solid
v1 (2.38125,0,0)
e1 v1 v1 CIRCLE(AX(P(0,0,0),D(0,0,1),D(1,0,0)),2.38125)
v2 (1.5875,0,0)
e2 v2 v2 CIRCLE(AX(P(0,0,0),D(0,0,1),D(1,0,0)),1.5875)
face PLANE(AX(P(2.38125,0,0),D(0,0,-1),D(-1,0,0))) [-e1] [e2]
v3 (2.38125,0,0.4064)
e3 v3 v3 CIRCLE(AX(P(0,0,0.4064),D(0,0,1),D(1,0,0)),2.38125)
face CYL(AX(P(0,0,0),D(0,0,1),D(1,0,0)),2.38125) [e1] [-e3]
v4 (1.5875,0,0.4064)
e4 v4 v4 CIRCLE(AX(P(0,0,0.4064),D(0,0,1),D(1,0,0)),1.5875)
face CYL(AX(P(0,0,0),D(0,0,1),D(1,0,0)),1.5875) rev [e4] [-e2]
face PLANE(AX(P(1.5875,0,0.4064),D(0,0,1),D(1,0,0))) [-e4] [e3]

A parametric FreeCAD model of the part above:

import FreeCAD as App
import Part
import Sketcher

V = App.Vector
Q = App.Units.Quantity

doc = App.newDocument("Part")
body = doc.addObject("PartDesign::Body", "Body")

# Sketch on XZ plane
sketch1 = body.newObject("Sketcher::SketchObject", "Sketch")
sketch1.AttachmentSupport = (doc.getObject("XZ_Plane"), [""])
sketch1.MapMode = "FlatFace"
sketch1.addGeometry([
    Part.LineSegment(V(1.59, 0, 0), V(1.59, 0.41, 0)),
    Part.LineSegment(V(1.59, 0.41, 0), V(2.38, 0.41, 0)),
    Part.LineSegment(V(2.38, 0.41, 0), V(2.38, 0, 0)),
    Part.LineSegment(V(2.38, 0, 0), V(1.59, 0, 0)),
], False)
sketch1.addConstraint([
    Sketcher.Constraint("Coincident", 0, 2, 1, 1),
    Sketcher.Constraint("Coincident", 1, 2, 2, 1),
    Sketcher.Constraint("Coincident", 2, 2, 3, 1),
    Sketcher.Constraint("Coincident", 3, 2, 0, 1),
    Sketcher.Constraint("Vertical", 0),
    Sketcher.Constraint("Horizontal", 1),
    Sketcher.Constraint("Vertical", 2),
    Sketcher.Constraint("Horizontal", 3),
    Sketcher.Constraint("PointOnObject", 2, 2, -1),
    Sketcher.Constraint("DistanceX", 1, 1, 1, 2, Q("0.03125 in")),
    Sketcher.Constraint("DistanceY", 0, 1, 0, 2, Q("0.016 in")),
    Sketcher.Constraint("DistanceX", -1, 1, 0, 2, Q("0.0625 in")),
])
revolution = body.newObject("PartDesign::Revolution", "Revolution")
revolution.Profile = sketch1
revolution.ReferenceAxis = (sketch1, ["V_Axis"])
revolution.Angle = 360

doc.recompute()
